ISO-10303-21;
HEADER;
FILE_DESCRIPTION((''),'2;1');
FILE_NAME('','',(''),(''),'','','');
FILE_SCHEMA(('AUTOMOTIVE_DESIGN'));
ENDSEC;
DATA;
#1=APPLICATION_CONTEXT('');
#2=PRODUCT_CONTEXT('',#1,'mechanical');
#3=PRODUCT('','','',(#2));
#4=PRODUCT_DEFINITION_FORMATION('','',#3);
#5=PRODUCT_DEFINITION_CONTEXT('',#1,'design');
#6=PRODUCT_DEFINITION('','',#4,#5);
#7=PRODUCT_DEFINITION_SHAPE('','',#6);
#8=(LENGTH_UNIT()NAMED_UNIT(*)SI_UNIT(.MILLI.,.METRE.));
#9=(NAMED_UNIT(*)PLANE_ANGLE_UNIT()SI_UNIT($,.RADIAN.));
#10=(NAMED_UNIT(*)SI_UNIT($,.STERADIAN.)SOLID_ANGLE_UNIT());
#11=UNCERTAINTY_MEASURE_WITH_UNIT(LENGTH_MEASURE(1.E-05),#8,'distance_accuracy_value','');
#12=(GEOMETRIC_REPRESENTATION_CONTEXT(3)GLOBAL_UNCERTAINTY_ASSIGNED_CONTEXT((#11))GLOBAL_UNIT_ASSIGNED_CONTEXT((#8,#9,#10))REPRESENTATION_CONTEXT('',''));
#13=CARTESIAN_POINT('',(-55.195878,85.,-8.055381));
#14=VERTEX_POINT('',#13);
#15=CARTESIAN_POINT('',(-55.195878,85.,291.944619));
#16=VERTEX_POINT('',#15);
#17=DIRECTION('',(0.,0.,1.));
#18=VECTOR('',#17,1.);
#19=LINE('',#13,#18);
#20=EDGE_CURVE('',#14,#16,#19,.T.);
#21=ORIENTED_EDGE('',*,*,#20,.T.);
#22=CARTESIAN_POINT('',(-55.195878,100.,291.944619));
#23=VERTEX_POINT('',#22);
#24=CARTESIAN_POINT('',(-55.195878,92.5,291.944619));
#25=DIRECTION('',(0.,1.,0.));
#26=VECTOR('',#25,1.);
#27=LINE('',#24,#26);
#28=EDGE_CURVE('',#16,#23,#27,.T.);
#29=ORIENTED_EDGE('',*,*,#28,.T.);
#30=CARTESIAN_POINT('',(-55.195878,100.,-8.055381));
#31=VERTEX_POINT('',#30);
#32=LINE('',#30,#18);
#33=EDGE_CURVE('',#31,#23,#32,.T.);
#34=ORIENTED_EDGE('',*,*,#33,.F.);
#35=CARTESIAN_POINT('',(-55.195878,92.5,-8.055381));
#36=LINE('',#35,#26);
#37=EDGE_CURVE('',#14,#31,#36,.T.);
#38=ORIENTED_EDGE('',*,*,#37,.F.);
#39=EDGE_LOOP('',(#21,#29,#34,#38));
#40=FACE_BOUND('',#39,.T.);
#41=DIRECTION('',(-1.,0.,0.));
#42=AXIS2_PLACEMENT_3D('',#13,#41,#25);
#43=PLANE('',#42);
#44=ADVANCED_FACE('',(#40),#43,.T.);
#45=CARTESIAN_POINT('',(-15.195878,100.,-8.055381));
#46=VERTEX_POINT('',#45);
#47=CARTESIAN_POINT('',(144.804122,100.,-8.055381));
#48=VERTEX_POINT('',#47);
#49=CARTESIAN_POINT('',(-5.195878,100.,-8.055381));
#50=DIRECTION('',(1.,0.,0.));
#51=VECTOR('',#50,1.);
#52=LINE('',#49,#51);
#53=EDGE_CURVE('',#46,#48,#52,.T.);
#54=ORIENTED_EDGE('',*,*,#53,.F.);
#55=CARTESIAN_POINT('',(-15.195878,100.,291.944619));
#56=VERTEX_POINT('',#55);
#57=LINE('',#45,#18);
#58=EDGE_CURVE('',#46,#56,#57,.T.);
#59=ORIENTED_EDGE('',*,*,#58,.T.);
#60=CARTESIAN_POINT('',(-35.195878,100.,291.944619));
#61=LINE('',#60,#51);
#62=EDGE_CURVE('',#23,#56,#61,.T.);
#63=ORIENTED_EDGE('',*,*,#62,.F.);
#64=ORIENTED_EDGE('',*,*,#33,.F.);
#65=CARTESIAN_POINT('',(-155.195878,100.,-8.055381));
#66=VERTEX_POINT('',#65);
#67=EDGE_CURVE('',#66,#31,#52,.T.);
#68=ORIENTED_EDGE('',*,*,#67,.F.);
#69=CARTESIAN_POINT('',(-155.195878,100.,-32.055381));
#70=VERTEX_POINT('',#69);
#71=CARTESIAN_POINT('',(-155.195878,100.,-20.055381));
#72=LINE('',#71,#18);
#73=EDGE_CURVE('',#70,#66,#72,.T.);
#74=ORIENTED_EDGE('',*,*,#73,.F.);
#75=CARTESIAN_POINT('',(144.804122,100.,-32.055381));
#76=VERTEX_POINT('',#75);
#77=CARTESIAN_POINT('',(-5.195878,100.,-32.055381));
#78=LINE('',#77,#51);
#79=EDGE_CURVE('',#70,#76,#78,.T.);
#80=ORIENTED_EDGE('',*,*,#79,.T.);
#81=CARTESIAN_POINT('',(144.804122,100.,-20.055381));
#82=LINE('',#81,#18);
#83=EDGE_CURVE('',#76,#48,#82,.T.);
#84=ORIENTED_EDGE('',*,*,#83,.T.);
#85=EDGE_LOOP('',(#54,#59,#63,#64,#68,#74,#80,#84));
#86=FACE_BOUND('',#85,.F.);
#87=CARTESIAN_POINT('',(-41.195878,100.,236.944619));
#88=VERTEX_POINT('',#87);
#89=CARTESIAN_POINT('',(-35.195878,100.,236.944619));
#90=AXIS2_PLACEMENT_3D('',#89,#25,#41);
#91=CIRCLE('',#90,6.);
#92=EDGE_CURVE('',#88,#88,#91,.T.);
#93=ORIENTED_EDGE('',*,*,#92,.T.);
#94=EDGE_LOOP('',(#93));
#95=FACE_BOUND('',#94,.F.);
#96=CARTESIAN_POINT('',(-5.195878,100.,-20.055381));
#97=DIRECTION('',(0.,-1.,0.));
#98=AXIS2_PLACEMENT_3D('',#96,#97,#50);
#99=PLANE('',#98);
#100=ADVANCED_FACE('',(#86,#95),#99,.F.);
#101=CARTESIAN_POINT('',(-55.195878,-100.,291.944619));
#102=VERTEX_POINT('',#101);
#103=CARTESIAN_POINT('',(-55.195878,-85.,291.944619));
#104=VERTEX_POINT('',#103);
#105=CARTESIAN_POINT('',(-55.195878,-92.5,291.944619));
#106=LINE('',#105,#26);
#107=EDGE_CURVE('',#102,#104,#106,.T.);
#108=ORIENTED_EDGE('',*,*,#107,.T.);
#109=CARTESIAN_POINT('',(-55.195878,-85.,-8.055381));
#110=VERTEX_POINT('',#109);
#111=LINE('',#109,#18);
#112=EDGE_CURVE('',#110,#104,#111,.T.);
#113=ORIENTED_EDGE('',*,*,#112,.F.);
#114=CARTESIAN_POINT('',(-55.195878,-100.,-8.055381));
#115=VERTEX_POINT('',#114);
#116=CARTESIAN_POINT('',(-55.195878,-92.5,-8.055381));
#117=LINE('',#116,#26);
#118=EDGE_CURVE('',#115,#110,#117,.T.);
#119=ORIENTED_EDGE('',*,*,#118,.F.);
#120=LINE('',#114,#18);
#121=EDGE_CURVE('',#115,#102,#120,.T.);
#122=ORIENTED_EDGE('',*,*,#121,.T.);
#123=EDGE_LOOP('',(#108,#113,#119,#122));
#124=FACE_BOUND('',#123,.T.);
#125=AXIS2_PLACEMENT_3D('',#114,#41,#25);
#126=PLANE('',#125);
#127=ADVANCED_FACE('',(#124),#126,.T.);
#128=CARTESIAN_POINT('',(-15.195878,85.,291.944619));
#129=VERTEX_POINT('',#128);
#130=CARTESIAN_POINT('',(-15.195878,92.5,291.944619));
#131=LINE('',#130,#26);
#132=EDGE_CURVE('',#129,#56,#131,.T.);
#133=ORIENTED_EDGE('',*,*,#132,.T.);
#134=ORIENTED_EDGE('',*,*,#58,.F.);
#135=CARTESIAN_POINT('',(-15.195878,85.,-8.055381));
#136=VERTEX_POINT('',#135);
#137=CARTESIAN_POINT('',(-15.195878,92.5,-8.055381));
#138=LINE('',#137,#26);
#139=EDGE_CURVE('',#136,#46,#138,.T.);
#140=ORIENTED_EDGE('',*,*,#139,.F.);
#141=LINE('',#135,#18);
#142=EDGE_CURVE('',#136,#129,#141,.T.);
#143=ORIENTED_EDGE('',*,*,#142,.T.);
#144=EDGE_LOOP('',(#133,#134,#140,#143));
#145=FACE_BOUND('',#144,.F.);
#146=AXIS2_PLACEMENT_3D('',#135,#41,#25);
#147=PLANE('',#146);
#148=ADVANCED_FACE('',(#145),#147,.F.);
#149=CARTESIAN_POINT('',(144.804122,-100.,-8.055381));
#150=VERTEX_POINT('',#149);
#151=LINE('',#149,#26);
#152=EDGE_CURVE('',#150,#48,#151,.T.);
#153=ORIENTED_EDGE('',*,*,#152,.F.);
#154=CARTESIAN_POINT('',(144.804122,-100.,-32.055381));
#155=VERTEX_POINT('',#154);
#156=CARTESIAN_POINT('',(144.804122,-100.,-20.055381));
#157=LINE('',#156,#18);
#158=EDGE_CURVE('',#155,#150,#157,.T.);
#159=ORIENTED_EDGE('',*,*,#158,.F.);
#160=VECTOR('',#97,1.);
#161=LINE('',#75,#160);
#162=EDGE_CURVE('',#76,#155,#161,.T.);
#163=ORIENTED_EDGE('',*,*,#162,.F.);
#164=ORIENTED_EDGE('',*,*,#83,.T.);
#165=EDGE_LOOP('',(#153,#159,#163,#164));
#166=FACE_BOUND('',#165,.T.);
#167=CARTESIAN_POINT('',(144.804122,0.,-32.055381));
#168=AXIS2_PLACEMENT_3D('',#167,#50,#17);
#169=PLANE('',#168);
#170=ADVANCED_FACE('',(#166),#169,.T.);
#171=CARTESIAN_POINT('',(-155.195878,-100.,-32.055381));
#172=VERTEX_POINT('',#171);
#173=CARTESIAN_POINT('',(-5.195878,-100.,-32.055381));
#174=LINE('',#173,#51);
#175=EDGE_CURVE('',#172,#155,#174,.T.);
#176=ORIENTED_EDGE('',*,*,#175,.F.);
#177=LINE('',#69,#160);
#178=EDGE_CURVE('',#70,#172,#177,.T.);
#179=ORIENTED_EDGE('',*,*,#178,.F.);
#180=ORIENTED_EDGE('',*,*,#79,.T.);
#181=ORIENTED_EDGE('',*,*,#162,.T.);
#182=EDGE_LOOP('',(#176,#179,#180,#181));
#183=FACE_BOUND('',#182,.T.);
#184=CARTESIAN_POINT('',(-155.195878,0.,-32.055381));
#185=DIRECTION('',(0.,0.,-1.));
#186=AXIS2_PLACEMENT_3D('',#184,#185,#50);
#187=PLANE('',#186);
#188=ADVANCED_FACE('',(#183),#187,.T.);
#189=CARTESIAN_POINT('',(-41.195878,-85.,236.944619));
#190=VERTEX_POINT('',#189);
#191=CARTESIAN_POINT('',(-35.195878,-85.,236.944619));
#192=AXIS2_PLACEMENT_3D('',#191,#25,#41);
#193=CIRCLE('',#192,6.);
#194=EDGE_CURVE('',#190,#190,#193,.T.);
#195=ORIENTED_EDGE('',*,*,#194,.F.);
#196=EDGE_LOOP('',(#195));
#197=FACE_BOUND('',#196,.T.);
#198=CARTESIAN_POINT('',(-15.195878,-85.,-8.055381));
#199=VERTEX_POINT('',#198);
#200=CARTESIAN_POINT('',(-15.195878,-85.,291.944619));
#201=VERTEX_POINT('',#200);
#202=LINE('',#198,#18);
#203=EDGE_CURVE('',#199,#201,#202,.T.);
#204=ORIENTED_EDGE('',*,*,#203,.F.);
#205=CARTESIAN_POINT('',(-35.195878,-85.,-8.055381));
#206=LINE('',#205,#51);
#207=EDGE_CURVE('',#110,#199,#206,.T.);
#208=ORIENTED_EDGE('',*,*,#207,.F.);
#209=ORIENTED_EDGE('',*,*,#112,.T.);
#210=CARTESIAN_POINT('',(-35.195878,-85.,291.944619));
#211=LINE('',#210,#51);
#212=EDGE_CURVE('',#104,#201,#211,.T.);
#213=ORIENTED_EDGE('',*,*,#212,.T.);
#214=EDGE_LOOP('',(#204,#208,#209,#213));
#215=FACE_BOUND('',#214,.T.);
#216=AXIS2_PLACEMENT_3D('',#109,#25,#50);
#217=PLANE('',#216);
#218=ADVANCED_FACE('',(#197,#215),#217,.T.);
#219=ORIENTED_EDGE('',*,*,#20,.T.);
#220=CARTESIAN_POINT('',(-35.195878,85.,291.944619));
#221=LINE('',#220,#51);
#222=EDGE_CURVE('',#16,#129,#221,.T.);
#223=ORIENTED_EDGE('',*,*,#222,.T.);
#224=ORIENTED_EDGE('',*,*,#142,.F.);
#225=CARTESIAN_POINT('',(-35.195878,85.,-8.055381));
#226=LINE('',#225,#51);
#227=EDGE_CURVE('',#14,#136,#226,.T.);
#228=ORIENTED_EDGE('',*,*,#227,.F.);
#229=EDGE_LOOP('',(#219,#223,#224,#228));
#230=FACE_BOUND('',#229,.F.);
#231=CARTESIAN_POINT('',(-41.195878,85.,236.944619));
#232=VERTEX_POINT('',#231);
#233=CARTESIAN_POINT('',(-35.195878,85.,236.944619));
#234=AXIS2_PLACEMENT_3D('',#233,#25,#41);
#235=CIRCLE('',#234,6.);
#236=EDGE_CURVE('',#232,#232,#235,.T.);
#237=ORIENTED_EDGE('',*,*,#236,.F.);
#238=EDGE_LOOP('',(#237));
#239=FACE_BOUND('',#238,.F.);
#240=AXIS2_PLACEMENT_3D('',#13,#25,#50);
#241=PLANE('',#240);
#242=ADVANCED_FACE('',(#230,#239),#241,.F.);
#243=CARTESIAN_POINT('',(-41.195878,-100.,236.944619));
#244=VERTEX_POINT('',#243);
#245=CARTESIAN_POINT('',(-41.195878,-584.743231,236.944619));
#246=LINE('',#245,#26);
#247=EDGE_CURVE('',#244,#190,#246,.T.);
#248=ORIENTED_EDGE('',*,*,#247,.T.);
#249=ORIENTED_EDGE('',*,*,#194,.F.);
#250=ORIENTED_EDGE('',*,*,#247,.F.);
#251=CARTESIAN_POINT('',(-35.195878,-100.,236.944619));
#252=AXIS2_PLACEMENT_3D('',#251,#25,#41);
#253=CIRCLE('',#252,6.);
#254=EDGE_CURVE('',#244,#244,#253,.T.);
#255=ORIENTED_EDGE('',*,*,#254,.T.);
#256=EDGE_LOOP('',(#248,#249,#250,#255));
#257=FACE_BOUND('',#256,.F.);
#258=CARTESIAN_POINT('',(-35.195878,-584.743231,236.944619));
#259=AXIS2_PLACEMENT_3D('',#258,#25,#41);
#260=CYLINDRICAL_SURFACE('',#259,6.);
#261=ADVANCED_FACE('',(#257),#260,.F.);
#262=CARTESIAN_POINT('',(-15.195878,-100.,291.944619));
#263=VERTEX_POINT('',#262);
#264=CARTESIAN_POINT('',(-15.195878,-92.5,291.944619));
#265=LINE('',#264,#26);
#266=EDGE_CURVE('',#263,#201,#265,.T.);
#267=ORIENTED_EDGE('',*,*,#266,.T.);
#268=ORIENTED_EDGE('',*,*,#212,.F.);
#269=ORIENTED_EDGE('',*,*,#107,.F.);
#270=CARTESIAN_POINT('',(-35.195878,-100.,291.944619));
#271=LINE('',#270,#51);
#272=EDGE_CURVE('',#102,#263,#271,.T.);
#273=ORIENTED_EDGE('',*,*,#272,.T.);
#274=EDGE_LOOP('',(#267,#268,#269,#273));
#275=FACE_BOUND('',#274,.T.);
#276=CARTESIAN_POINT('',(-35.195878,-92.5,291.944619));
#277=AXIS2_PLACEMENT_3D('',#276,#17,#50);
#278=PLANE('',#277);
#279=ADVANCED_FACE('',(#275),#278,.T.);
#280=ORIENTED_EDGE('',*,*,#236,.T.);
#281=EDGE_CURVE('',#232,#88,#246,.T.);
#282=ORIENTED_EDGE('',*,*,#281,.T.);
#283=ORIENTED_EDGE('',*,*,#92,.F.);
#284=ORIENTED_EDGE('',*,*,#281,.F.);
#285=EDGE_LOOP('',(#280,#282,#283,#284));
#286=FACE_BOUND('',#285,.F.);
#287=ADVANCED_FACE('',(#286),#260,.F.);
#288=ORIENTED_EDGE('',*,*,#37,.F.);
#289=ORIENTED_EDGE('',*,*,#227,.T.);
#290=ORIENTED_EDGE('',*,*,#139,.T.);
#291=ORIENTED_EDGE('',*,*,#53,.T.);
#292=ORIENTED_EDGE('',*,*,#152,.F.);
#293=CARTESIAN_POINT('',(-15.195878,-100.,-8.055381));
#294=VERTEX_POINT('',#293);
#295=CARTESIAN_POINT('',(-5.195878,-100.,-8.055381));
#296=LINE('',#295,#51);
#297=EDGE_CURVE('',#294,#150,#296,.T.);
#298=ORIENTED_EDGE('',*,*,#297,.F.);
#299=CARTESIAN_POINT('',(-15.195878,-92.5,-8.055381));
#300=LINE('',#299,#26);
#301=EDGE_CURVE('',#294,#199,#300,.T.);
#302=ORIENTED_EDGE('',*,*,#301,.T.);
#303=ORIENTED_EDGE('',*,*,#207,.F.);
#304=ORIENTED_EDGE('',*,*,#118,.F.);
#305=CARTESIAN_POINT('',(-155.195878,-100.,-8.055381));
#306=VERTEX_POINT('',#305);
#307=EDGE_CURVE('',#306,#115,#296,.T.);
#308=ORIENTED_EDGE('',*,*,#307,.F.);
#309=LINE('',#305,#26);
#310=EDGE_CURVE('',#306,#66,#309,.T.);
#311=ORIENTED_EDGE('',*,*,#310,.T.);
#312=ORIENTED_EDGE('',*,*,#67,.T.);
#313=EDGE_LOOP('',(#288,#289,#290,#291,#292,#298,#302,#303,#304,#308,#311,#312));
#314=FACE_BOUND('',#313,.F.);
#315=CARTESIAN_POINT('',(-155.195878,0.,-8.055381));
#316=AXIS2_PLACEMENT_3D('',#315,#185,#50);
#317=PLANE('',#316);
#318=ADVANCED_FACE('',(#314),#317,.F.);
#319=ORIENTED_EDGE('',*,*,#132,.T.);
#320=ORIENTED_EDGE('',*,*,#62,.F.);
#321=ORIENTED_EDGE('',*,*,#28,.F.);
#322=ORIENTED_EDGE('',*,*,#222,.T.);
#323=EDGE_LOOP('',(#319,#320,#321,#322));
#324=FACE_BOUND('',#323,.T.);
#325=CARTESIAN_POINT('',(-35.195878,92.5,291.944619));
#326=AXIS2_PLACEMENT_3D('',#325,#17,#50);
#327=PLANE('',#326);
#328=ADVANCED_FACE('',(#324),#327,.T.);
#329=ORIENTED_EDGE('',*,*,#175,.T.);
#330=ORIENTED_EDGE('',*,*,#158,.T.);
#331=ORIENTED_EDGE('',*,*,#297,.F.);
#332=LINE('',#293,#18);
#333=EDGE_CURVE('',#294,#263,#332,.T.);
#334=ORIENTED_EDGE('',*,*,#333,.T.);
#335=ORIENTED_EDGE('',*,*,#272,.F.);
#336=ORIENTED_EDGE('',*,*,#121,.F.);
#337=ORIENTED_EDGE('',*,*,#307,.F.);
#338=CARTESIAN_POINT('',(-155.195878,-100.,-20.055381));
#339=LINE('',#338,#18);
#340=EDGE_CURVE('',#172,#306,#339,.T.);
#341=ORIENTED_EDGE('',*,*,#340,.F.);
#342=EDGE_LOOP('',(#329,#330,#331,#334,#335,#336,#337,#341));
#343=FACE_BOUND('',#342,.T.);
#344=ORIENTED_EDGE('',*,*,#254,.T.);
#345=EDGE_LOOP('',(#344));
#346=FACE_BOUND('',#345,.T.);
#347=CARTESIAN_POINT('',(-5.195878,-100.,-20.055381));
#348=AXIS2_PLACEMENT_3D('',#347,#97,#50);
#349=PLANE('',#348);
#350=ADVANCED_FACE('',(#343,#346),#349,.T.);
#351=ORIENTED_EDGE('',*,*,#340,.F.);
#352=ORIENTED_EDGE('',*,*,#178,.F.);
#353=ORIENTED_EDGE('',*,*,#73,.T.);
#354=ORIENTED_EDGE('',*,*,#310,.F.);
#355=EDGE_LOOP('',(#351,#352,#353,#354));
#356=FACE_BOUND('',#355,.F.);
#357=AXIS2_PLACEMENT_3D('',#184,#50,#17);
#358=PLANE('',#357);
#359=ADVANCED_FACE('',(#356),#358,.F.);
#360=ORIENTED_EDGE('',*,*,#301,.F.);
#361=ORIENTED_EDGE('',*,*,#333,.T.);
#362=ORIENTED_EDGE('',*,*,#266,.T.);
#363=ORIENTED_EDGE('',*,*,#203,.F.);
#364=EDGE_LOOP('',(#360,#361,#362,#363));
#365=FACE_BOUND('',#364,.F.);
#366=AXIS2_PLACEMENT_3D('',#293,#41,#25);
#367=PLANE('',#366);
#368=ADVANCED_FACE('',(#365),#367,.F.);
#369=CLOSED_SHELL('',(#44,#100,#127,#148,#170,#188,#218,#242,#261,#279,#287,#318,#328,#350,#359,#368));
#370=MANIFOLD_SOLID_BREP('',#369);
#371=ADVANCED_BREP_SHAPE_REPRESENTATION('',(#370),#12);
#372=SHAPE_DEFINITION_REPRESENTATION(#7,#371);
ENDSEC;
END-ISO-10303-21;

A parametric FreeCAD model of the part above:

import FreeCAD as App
import Part
import Sketcher

V = App.Vector


def add_polygon(sketch, points):
    """Adds a closed chain of lines whose ends are joined by coincident constraints."""
    first, n = sketch.GeometryCount, len(points)
    for a, b in zip(points, points[1:] + points[:1]):
        sketch.addGeometry(Part.LineSegment(App.Vector(*a, 0), App.Vector(*b, 0)), False)
    for i in range(n):
        sketch.addConstraint(Sketcher.Constraint("Coincident", first + i, 2, first + (i + 1) % n, 1))

doc = App.newDocument("Part")
params = doc.addObject("Spreadsheet::Sheet", "Params")
for row, (alias, value) in enumerate([
    ("sketch1_width", "300 mm"),
    ("sketch1_height", "24 mm"),
    ("pad1_length", "200 mm"),
    ("sketch2_width", "40 mm"),
    ("sketch2_height", "15 mm"),
    ("pad2_length", "300 mm"),
    ("sketch3_diameter", "12 mm"),
    ("hole_diameter", "12 mm"),
], start=1):
    params.set(f"A{row}", alias)
    params.set(f"B{row}", "=" + value)
    params.setAlias(f"B{row}", alias)

body = doc.addObject("PartDesign::Body", "Body")

sketch1 = body.newObject("Sketcher::SketchObject", "Sketch")
sketch1.AttachmentSupport = (doc.getObject("XZ_Plane"), [""])
sketch1.MapMode = "FlatFace"
add_polygon(sketch1, [(-155.195878, -8.055381), (-155.195878, -32.055381), (144.804122, -32.055381), (144.804122, -8.055381)])
sketch1.addConstraint(Sketcher.Constraint("Vertical", 0))
sketch1.addConstraint(Sketcher.Constraint("Horizontal", 1))
sketch1.addConstraint(Sketcher.Constraint("Vertical", 2))
sketch1.addConstraint(Sketcher.Constraint("Horizontal", 3))
sketch1.addConstraint(Sketcher.Constraint("DistanceX", 1, 1, 1, 2, 300.0))
sketch1.addConstraint(Sketcher.Constraint("DistanceY", 0, 2, 0, 1, 24.0))
sketch1.addConstraint(Sketcher.Constraint("DistanceX", 0, 2, -1, 1, 155.195878))
sketch1.addConstraint(Sketcher.Constraint("DistanceY", 0, 2, -1, 1, 32.055381))
sketch1.setExpression("Constraints[8]", "Params.sketch1_width")
sketch1.setExpression("Constraints[9]", "Params.sketch1_height")
pad1 = body.newObject("PartDesign::Pad", "Pad")
pad1.Profile = sketch1
pad1.setExpression("Length", "Params.pad1_length")
pad1.Midplane = True

sketch2 = body.newObject("Sketcher::SketchObject", "Sketch001")
sketch2.AttachmentSupport = (doc.getObject("XY_Plane"), [""])
sketch2.MapMode = "FlatFace"
sketch2.AttachmentOffset = App.Placement(V(0, 0, -8.055381), App.Rotation())
add_polygon(sketch2, [(-55.195878, -85), (-55.195878, -100), (-15.195878, -100), (-15.195878, -85)])
add_polygon(sketch2, [(-55.195878, 100), (-55.195878, 85), (-15.195878, 85), (-15.195878, 100)])
sketch2.addConstraint(Sketcher.Constraint("Vertical", 0))
sketch2.addConstraint(Sketcher.Constraint("Horizontal", 1))
sketch2.addConstraint(Sketcher.Constraint("Vertical", 2))
sketch2.addConstraint(Sketcher.Constraint("Horizontal", 3))
sketch2.addConstraint(Sketcher.Constraint("Vertical", 4))
sketch2.addConstraint(Sketcher.Constraint("Horizontal", 5))
sketch2.addConstraint(Sketcher.Constraint("Vertical", 6))
sketch2.addConstraint(Sketcher.Constraint("Horizontal", 7))
sketch2.addConstraint(Sketcher.Constraint("Symmetric", 3, 2, 4, 2, -1))
sketch2.addConstraint(Sketcher.Constraint("Symmetric", 1, 2, 6, 2, -1))
sketch2.addConstraint(Sketcher.Constraint("DistanceX", 1, 1, 1, 2, 40.0))
sketch2.addConstraint(Sketcher.Constraint("DistanceY", 0, 2, 0, 1, 15.0))
sketch2.addConstraint(Sketcher.Constraint("DistanceY", 0, 2, -1, 1, 100.0))
sketch2.addConstraint(Sketcher.Constraint("DistanceX", 0, 2, -1, 1, 55.195878))
sketch2.setExpression("Constraints[18]", "Params.sketch2_width")
sketch2.setExpression("Constraints[19]", "Params.sketch2_height")
pad2 = body.newObject("PartDesign::Pad", "Pad001")
pad2.Profile = sketch2
pad2.setExpression("Length", "Params.pad2_length")

sketch3 = body.newObject("Sketcher::SketchObject", "Sketch002")
sketch3.AttachmentSupport = (doc.getObject("XZ_Plane"), [""])
sketch3.MapMode = "FlatFace"
sketch3.AttachmentOffset = App.Placement(V(0, 0, 100), App.Rotation())
sketch3.addGeometry(Part.Circle(V(-35.195878, 236.944619, 0), V(0, 0, 1), 6), False)
sketch3.addConstraint(Sketcher.Constraint("Diameter", 0, 12.0))
sketch3.addConstraint(Sketcher.Constraint("DistanceY", -1, 1, 0, 3, 236.944619))
sketch3.addConstraint(Sketcher.Constraint("DistanceX", 0, 3, -1, 1, 35.195878))
sketch3.setExpression("Constraints[0]", "Params.sketch3_diameter")
doc.recompute()
hole = body.newObject("PartDesign::Hole", "Hole")
hole.Profile = sketch3
hole.ThreadType = "None"
hole.setExpression("Diameter", "Params.hole_diameter")
hole.DepthType = "ThroughAll"

doc.recompute()
